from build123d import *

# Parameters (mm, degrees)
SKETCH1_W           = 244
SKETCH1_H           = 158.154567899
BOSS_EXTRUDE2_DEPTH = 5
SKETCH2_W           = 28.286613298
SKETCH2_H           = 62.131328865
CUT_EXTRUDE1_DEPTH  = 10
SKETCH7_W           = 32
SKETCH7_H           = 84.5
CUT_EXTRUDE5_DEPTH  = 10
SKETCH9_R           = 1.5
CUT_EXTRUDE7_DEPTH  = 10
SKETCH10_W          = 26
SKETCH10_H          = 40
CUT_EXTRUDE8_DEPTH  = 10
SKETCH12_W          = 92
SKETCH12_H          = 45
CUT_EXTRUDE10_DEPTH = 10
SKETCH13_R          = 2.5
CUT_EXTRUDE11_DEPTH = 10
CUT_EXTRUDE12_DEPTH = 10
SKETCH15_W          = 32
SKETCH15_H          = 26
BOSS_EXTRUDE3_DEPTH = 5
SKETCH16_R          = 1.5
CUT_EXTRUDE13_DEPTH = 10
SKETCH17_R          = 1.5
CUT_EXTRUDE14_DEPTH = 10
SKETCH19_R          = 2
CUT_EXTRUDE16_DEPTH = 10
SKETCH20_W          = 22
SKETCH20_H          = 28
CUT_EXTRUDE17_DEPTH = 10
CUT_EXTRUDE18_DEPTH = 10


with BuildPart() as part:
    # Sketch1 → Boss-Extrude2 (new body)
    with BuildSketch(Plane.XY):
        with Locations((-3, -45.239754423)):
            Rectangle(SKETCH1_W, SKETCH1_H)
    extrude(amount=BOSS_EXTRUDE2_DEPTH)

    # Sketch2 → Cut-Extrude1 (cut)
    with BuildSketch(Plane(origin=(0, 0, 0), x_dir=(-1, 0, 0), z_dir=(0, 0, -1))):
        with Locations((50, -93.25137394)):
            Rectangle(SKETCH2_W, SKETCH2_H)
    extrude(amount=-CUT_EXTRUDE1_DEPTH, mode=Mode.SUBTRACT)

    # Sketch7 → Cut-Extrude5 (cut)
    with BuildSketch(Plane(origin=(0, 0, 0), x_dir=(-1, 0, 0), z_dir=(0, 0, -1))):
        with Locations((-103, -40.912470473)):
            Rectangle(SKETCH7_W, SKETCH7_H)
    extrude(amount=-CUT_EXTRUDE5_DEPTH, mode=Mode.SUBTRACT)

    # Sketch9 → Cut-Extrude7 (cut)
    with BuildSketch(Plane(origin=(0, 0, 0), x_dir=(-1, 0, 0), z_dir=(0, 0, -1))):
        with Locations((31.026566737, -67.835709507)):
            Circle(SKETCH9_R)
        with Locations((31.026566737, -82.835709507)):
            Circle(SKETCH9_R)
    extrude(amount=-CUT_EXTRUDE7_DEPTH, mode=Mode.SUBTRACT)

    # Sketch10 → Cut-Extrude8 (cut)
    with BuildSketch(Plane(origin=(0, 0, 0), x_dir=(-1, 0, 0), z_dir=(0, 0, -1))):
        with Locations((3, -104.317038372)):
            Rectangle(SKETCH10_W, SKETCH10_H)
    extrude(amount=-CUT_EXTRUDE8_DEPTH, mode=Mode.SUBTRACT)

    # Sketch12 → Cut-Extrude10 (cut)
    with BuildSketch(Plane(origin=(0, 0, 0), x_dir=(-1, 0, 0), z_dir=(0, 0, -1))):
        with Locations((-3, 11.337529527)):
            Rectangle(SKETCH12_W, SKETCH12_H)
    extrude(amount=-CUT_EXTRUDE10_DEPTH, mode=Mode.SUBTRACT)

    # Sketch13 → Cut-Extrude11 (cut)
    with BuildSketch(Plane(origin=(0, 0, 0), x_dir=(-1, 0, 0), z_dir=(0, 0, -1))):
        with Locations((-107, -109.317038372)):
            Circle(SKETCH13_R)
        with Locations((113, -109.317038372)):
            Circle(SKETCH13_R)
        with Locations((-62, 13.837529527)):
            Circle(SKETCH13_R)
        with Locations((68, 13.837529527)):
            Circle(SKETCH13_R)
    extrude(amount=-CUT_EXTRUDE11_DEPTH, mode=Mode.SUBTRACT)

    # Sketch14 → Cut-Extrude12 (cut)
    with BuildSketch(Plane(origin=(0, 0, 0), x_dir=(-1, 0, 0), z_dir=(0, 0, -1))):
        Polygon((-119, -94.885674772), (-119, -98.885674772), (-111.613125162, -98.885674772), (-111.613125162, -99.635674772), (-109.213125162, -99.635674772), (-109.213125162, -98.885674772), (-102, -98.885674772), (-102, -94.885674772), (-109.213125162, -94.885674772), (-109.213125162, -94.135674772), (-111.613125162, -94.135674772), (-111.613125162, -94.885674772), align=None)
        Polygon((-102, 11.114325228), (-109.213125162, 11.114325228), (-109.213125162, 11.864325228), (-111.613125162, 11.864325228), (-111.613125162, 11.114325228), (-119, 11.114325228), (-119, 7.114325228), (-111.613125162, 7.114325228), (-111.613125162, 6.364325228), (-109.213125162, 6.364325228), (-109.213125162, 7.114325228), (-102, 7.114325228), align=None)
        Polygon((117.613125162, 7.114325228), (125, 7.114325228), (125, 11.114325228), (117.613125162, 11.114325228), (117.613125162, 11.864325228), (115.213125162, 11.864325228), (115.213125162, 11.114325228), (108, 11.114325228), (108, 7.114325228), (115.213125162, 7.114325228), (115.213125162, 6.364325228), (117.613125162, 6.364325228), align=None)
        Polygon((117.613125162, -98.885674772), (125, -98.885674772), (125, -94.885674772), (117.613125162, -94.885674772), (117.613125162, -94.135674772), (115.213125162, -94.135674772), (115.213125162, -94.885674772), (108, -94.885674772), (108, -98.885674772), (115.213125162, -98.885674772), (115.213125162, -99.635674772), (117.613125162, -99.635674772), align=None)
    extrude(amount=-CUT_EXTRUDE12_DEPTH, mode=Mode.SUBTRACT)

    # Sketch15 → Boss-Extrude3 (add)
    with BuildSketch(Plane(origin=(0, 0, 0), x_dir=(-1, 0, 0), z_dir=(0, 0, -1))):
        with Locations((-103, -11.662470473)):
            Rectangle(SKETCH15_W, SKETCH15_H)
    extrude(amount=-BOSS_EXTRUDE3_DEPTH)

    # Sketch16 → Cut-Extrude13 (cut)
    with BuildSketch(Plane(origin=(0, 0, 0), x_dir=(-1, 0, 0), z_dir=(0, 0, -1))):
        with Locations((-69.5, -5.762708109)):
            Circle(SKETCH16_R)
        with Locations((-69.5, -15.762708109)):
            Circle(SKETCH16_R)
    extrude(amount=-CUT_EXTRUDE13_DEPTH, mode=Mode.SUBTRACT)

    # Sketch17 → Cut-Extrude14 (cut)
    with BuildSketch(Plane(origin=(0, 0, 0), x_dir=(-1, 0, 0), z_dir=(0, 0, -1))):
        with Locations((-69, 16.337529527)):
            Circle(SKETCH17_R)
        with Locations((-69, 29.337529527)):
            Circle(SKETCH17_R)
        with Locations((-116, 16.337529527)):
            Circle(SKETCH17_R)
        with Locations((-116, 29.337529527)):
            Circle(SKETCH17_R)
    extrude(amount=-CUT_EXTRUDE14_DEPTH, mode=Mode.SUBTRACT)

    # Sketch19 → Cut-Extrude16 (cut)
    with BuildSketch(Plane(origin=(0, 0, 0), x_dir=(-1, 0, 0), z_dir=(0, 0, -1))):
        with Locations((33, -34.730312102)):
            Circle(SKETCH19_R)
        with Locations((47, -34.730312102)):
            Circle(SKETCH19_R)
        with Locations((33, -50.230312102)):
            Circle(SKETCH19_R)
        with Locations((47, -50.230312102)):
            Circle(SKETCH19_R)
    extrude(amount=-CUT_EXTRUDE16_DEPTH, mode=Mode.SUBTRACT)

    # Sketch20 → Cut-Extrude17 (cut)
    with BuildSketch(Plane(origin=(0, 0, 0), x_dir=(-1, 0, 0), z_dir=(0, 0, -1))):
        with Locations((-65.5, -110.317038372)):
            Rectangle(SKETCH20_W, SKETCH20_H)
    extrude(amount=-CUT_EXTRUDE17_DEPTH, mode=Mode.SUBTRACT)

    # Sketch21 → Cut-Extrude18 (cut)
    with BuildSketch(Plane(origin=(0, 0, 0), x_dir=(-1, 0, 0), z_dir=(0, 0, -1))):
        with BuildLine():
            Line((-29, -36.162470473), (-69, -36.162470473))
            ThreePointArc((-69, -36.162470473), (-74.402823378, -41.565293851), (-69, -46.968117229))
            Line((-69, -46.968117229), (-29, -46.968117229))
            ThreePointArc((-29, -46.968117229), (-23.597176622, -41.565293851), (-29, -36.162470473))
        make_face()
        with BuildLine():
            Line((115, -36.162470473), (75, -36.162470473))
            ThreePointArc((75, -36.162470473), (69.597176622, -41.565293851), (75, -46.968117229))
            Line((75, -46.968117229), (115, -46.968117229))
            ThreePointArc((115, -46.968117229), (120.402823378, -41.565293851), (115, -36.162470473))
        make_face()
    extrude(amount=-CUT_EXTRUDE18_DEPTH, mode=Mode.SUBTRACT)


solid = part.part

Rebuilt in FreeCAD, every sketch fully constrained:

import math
import FreeCAD as App
import Part
import Sketcher

V = App.Vector
Q = App.Units.Quantity

doc = App.newDocument("Part")
body = doc.addObject("PartDesign::Body", "Body")

# Sketch on XY plane
sketch1 = doc.addObject("Sketcher::SketchObject", "Sketch")
body.addObject(sketch1)
sketch1.AttachmentSupport = (doc.XY_Plane, [""])
sketch1.MapMode = "FlatFace"
sketch1.addGeometry(Part.LineSegment(V(-125, 34, 0), V(-125, -124, 0)), False)
sketch1.addGeometry(Part.LineSegment(V(-125, -124, 0), V(119, -124, 0)), False)
sketch1.addGeometry(Part.LineSegment(V(119, -124, 0), V(119, 34, 0)), False)
sketch1.addGeometry(Part.LineSegment(V(119, 34, 0), V(-125, 34, 0)), False)
sketch1.addConstraint(Sketcher.Constraint("Coincident", 0, 2, 1, 1))
sketch1.addConstraint(Sketcher.Constraint("Coincident", 1, 2, 2, 1))
sketch1.addConstraint(Sketcher.Constraint("Coincident", 2, 2, 3, 1))
sketch1.addConstraint(Sketcher.Constraint("Coincident", 3, 2, 0, 1))
sketch1.addConstraint(Sketcher.Constraint("Vertical", 0))
sketch1.addConstraint(Sketcher.Constraint("Horizontal", 1))
sketch1.addConstraint(Sketcher.Constraint("Vertical", 2))
sketch1.addConstraint(Sketcher.Constraint("Horizontal", 3))
sketch1.addConstraint(Sketcher.Constraint("DistanceX", 1, 1, 1, 2, Q("244 mm")))
sketch1.addConstraint(Sketcher.Constraint("DistanceX", 0, 2, -1, 1, Q("125 mm")))
sketch1.addConstraint(Sketcher.Constraint("DistanceY", 0, 2, 0, 1, Q("158.154568 mm")))
sketch1.addConstraint(Sketcher.Constraint("DistanceY", 0, 2, -1, 1, Q("124.317038 mm")))
pad1 = doc.addObject("PartDesign::Pad", "Pad")
body.addObject(pad1)
pad1.Profile = sketch1
pad1.Length = 5

# Sketch on XY plane
sketch2 = doc.addObject("Sketcher::SketchObject", "Sketch001")
body.addObject(sketch2)
sketch2.AttachmentSupport = (doc.XY_Plane, [""])
sketch2.MapMode = "FlatFace"
sketch2.addGeometry(Part.LineSegment(V(-36, -62, 0), V(-36, -124, 0)), False)
sketch2.addGeometry(Part.LineSegment(V(-36, -124, 0), V(-64, -124, 0)), False)
sketch2.addGeometry(Part.LineSegment(V(-64, -124, 0), V(-64, -62, 0)), False)
sketch2.addGeometry(Part.LineSegment(V(-64, -62, 0), V(-36, -62, 0)), False)
sketch2.addConstraint(Sketcher.Constraint("Coincident", 0, 2, 1, 1))
sketch2.addConstraint(Sketcher.Constraint("Coincident", 1, 2, 2, 1))
sketch2.addConstraint(Sketcher.Constraint("Coincident", 2, 2, 3, 1))
sketch2.addConstraint(Sketcher.Constraint("Coincident", 3, 2, 0, 1))
sketch2.addConstraint(Sketcher.Constraint("Vertical", 0))
sketch2.addConstraint(Sketcher.Constraint("Horizontal", 1))
sketch2.addConstraint(Sketcher.Constraint("Vertical", 2))
sketch2.addConstraint(Sketcher.Constraint("Horizontal", 3))
sketch2.addConstraint(Sketcher.Constraint("DistanceY", 0, 2, 0, 1, Q("62.131329 mm")))
sketch2.addConstraint(Sketcher.Constraint("DistanceX", 1, 2, 1, 1, Q("28.286613 mm")))
sketch2.addConstraint(Sketcher.Constraint("DistanceY", 0, 2, -1, 1, Q("124.317038 mm")))
sketch2.addConstraint(Sketcher.Constraint("DistanceX", 0, 2, -1, 1, Q("35.856693 mm")))
pocket1 = doc.addObject("PartDesign::Pocket", "Pocket")
body.addObject(pocket1)
pocket1.Profile = sketch2
pocket1.Length = 10
pocket1.Reversed = True

# Sketch on XY plane
sketch3 = doc.addObject("Sketcher::SketchObject", "Sketch002")
body.addObject(sketch3)
sketch3.AttachmentSupport = (doc.XY_Plane, [""])
sketch3.MapMode = "FlatFace"
sketch3.addGeometry(Part.LineSegment(V(119, 1, 0), V(119, -83, 0)), False)
sketch3.addGeometry(Part.LineSegment(V(119, -83, 0), V(87, -83, 0)), False)
sketch3.addGeometry(Part.LineSegment(V(87, -83, 0), V(87, 1, 0)), False)
sketch3.addGeometry(Part.LineSegment(V(87, 1, 0), V(119, 1, 0)), False)
sketch3.addConstraint(Sketcher.Constraint("Coincident", 0, 2, 1, 1))
sketch3.addConstraint(Sketcher.Constraint("Coincident", 1, 2, 2, 1))
sketch3.addConstraint(Sketcher.Constraint("Coincident", 2, 2, 3, 1))
sketch3.addConstraint(Sketcher.Constraint("Coincident", 3, 2, 0, 1))
sketch3.addConstraint(Sketcher.Constraint("Vertical", 0))
sketch3.addConstraint(Sketcher.Constraint("Horizontal", 1))
sketch3.addConstraint(Sketcher.Constraint("Vertical", 2))
sketch3.addConstraint(Sketcher.Constraint("Horizontal", 3))
sketch3.addConstraint(Sketcher.Constraint("DistanceX", 1, 2, 1, 1, Q("32 mm")))
sketch3.addConstraint(Sketcher.Constraint("DistanceY", 0, 2, 0, 1, Q("84.5 mm")))
sketch3.addConstraint(Sketcher.Constraint("DistanceX", -1, 1, 0, 2, Q("119 mm")))
sketch3.addConstraint(Sketcher.Constraint("DistanceY", 0, 2, -1, 1, Q("83.16247 mm")))
pocket2 = doc.addObject("PartDesign::Pocket", "Pocket001")
body.addObject(pocket2)
pocket2.Profile = sketch3
pocket2.Length = 10
pocket2.Reversed = True

# Sketch on XY plane
sketch4 = doc.addObject("Sketcher::SketchObject", "Sketch003")
body.addObject(sketch4)
sketch4.AttachmentSupport = (doc.XY_Plane, [""])
sketch4.MapMode = "FlatFace"
sketch4.addGeometry(Part.Circle(V(-31, -67.8, 0), V(0, 0, 1), 1.5), False)
sketch4.addGeometry(Part.Circle(V(-31, -82.8, 0), V(0, 0, 1), 1.5), False)
sketch4.addConstraint(Sketcher.Constraint("Equal", 0, 1))
sketch4.addConstraint(Sketcher.Constraint("Vertical", 0, 3, 1, 3))
sketch4.addConstraint(Sketcher.Constraint("Diameter", 0, Q("3 mm")))
sketch4.addConstraint(Sketcher.Constraint("DistanceY", 1, 3, 0, 3, Q("15 mm")))
sketch4.addConstraint(Sketcher.Constraint("DistanceY", 0, 3, -1, 1, Q("67.83571 mm")))
sketch4.addConstraint(Sketcher.Constraint("DistanceX", 0, 3, -1, 1, Q("31.026567 mm")))
pocket3 = doc.addObject("PartDesign::Pocket", "Pocket002")
body.addObject(pocket3)
pocket3.Profile = sketch4
pocket3.Length = 10
pocket3.Reversed = True

# Sketch on XY plane
sketch5 = doc.addObject("Sketcher::SketchObject", "Sketch004")
body.addObject(sketch5)
sketch5.AttachmentSupport = (doc.XY_Plane, [""])
sketch5.MapMode = "FlatFace"
sketch5.addGeometry(Part.LineSegment(V(10, -84, 0), V(10, -124, 0)), False)
sketch5.addGeometry(Part.LineSegment(V(10, -124, 0), V(-16, -124, 0)), False)
sketch5.addGeometry(Part.LineSegment(V(-16, -124, 0), V(-16, -84, 0)), False)
sketch5.addGeometry(Part.LineSegment(V(-16, -84, 0), V(10, -84, 0)), False)
sketch5.addConstraint(Sketcher.Constraint("Coincident", 0, 2, 1, 1))
sketch5.addConstraint(Sketcher.Constraint("Coincident", 1, 2, 2, 1))
sketch5.addConstraint(Sketcher.Constraint("Coincident", 2, 2, 3, 1))
sketch5.addConstraint(Sketcher.Constraint("Coincident", 3, 2, 0, 1))
sketch5.addConstraint(Sketcher.Constraint("Vertical", 0))
sketch5.addConstraint(Sketcher.Constraint("Horizontal", 1))
sketch5.addConstraint(Sketcher.Constraint("Vertical", 2))
sketch5.addConstraint(Sketcher.Constraint("Horizontal", 3))
sketch5.addConstraint(Sketcher.Constraint("DistanceX", 1, 2, 1, 1, Q("26 mm")))
sketch5.addConstraint(Sketcher.Constraint("DistanceY", 0, 2, 0, 1, Q("40 mm")))
sketch5.addConstraint(Sketcher.Constraint("DistanceX", -1, 1, 0, 2, Q("10 mm")))
sketch5.addConstraint(Sketcher.Constraint("DistanceY", 0, 2, -1, 1, Q("124.317038 mm")))
pocket4 = doc.addObject("PartDesign::Pocket", "Pocket003")
body.addObject(pocket4)
pocket4.Profile = sketch5
pocket4.Length = 10
pocket4.Reversed = True

# Sketch on XY plane
sketch6 = doc.addObject("Sketcher::SketchObject", "Sketch005")
body.addObject(sketch6)
sketch6.AttachmentSupport = (doc.XY_Plane, [""])
sketch6.MapMode = "FlatFace"
sketch6.addGeometry(Part.LineSegment(V(49, 34, 0), V(49, -11, 0)), False)
sketch6.addGeometry(Part.LineSegment(V(49, -11, 0), V(-43, -11, 0)), False)
sketch6.addGeometry(Part.LineSegment(V(-43, -11, 0), V(-43, 34, 0)), False)
sketch6.addGeometry(Part.LineSegment(V(-43, 34, 0), V(49, 34, 0)), False)
sketch6.addConstraint(Sketcher.Constraint("Coincident", 0, 2, 1, 1))
sketch6.addConstraint(Sketcher.Constraint("Coincident", 1, 2, 2, 1))
sketch6.addConstraint(Sketcher.Constraint("Coincident", 2, 2, 3, 1))
sketch6.addConstraint(Sketcher.Constraint("Coincident", 3, 2, 0, 1))
sketch6.addConstraint(Sketcher.Constraint("Vertical", 0))
sketch6.addConstraint(Sketcher.Constraint("Horizontal", 1))
sketch6.addConstraint(Sketcher.Constraint("Vertical", 2))
sketch6.addConstraint(Sketcher.Constraint("Horizontal", 3))
sketch6.addConstraint(Sketcher.Constraint("DistanceX", 1, 2, 1, 1, Q("92 mm")))
sketch6.addConstraint(Sketcher.Constraint("DistanceY", 0, 2, 0, 1, Q("45 mm")))
sketch6.addConstraint(Sketcher.Constraint("DistanceX", -1, 1, 0, 2, Q("49 mm")))
sketch6.addConstraint(Sketcher.Constraint("DistanceY", 0, 2, -1, 1, Q("11.16247 mm")))
pocket5 = doc.addObject("PartDesign::Pocket", "Pocket004")
body.addObject(pocket5)
pocket5.Profile = sketch6
pocket5.Length = 10
pocket5.Reversed = True

# Sketch on XY plane
sketch7 = doc.addObject("Sketcher::SketchObject", "Sketch006")
body.addObject(sketch7)
sketch7.AttachmentSupport = (doc.XY_Plane, [""])
sketch7.MapMode = "FlatFace"
sketch7.addGeometry(Part.Circle(V(107, -109.3, 0), V(0, 0, 1), 2.5), False)
sketch7.addGeometry(Part.Circle(V(-113, -109.3, 0), V(0, 0, 1), 2.5), False)
sketch7.addGeometry(Part.Circle(V(62, 13.8, 0), V(0, 0, 1), 2.5), False)
sketch7.addGeometry(Part.Circle(V(-68, 13.8, 0), V(0, 0, 1), 2.5), False)
sketch7.addConstraint(Sketcher.Constraint("Equal", 0, 1))
sketch7.addConstraint(Sketcher.Constraint("Equal", 1, 2))
sketch7.addConstraint(Sketcher.Constraint("Equal", 2, 3))
sketch7.addConstraint(Sketcher.Constraint("Horizontal", 0, 3, 1, 3))
sketch7.addConstraint(Sketcher.Constraint("Horizontal", 2, 3, 3, 3))
sketch7.addConstraint(Sketcher.Constraint("Diameter", 0, Q("5 mm")))
sketch7.addConstraint(Sketcher.Constraint("DistanceX", -1, 1, 0, 3, Q("107 mm")))
sketch7.addConstraint(Sketcher.Constraint("DistanceX", 1, 3, -1, 1, Q("113 mm")))
sketch7.addConstraint(Sketcher.Constraint("DistanceX", -1, 1, 2, 3, Q("62 mm")))
sketch7.addConstraint(Sketcher.Constraint("DistanceX", 3, 3, -1, 1, Q("68 mm")))
sketch7.addConstraint(Sketcher.Constraint("DistanceY", 0, 3, -1, 1, Q("109.317038 mm")))
sketch7.addConstraint(Sketcher.Constraint("DistanceY", -1, 1, 2, 3, Q("13.83753 mm")))
pocket6 = doc.addObject("PartDesign::Pocket", "Pocket005")
body.addObject(pocket6)
pocket6.Profile = sketch7
pocket6.Length = 10
pocket6.Reversed = True

# Sketch on XY plane
sketch8 = doc.addObject("Sketcher::SketchObject", "Sketch007")
body.addObject(sketch8)
sketch8.AttachmentSupport = (doc.XY_Plane, [""])
sketch8.MapMode = "FlatFace"
sketch8.addGeometry(Part.LineSegment(V(119, -94.9, 0), V(119, -98.9, 0)), False)
sketch8.addGeometry(Part.LineSegment(V(119, -98.9, 0), V(111.6, -98.9, 0)), False)
sketch8.addGeometry(Part.LineSegment(V(111.6, -98.9, 0), V(111.6, -99.6, 0)), False)
sketch8.addGeometry(Part.LineSegment(V(111.6, -99.6, 0), V(109.2, -99.6, 0)), False)
sketch8.addGeometry(Part.LineSegment(V(109.2, -99.6, 0), V(109.2, -98.9, 0)), False)
sketch8.addGeometry(Part.LineSegment(V(109.2, -98.9, 0), V(102, -98.9, 0)), False)
sketch8.addGeometry(Part.LineSegment(V(102, -98.9, 0), V(102, -94.9, 0)), False)
sketch8.addGeometry(Part.LineSegment(V(102, -94.9, 0), V(109.2, -94.9, 0)), False)
sketch8.addGeometry(Part.LineSegment(V(109.2, -94.9, 0), V(109.2, -94.1, 0)), False)
sketch8.addGeometry(Part.LineSegment(V(109.2, -94.1, 0), V(111.6, -94.1, 0)), False)
sketch8.addGeometry(Part.LineSegment(V(111.6, -94.1, 0), V(111.6, -94.9, 0)), False)
sketch8.addGeometry(Part.LineSegment(V(111.6, -94.9, 0), V(119, -94.9, 0)), False)
sketch8.addGeometry(Part.LineSegment(V(102, 11.1, 0), V(109.2, 11.1, 0)), False)
sketch8.addGeometry(Part.LineSegment(V(109.2, 11.1, 0), V(109.2, 11.9, 0)), False)
sketch8.addGeometry(Part.LineSegment(V(109.2, 11.9, 0), V(111.6, 11.9, 0)), False)
sketch8.addGeometry(Part.LineSegment(V(111.6, 11.9, 0), V(111.6, 11.1, 0)), False)
sketch8.addGeometry(Part.LineSegment(V(111.6, 11.1, 0), V(119, 11.1, 0)), False)
sketch8.addGeometry(Part.LineSegment(V(119, 11.1, 0), V(119, 7.1, 0)), False)
sketch8.addGeometry(Part.LineSegment(V(119, 7.1, 0), V(111.6, 7.1, 0)), False)
sketch8.addGeometry(Part.LineSegment(V(111.6, 7.1, 0), V(111.6, 6.4, 0)), False)
sketch8.addGeometry(Part.LineSegment(V(111.6, 6.4, 0), V(109.2, 6.4, 0)), False)
sketch8.addGeometry(Part.LineSegment(V(109.2, 6.4, 0), V(109.2, 7.1, 0)), False)
sketch8.addGeometry(Part.LineSegment(V(109.2, 7.1, 0), V(102, 7.1, 0)), False)
sketch8.addGeometry(Part.LineSegment(V(102, 7.1, 0), V(102, 11.1, 0)), False)
sketch8.addGeometry(Part.LineSegment(V(-117.6, 7.1, 0), V(-125, 7.1, 0)), False)
sketch8.addGeometry(Part.LineSegment(V(-125, 7.1, 0), V(-125, 11.1, 0)), False)
sketch8.addGeometry(Part.LineSegment(V(-125, 11.1, 0), V(-117.6, 11.1, 0)), False)
sketch8.addGeometry(Part.LineSegment(V(-117.6, 11.1, 0), V(-117.6, 11.9, 0)), False)
sketch8.addGeometry(Part.LineSegment(V(-117.6, 11.9, 0), V(-115.2, 11.9, 0)), False)
sketch8.addGeometry(Part.LineSegment(V(-115.2, 11.9, 0), V(-115.2, 11.1, 0)), False)
sketch8.addGeometry(Part.LineSegment(V(-115.2, 11.1, 0), V(-108, 11.1, 0)), False)
sketch8.addGeometry(Part.LineSegment(V(-108, 11.1, 0), V(-108, 7.1, 0)), False)
sketch8.addGeometry(Part.LineSegment(V(-108, 7.1, 0), V(-115.2, 7.1, 0)), False)
sketch8.addGeometry(Part.LineSegment(V(-115.2, 7.1, 0), V(-115.2, 6.4, 0)), False)
sketch8.addGeometry(Part.LineSegment(V(-115.2, 6.4, 0), V(-117.6, 6.4, 0)), False)
sketch8.addGeometry(Part.LineSegment(V(-117.6, 6.4, 0), V(-117.6, 7.1, 0)), False)
sketch8.addGeometry(Part.LineSegment(V(-117.6, -98.9, 0), V(-125, -98.9, 0)), False)
sketch8.addGeometry(Part.LineSegment(V(-125, -98.9, 0), V(-125, -94.9, 0)), False)
sketch8.addGeometry(Part.LineSegment(V(-125, -94.9, 0), V(-117.6, -94.9, 0)), False)
sketch8.addGeometry(Part.LineSegment(V(-117.6, -94.9, 0), V(-117.6, -94.1, 0)), False)
sketch8.addGeometry(Part.LineSegment(V(-117.6, -94.1, 0), V(-115.2, -94.1, 0)), False)
sketch8.addGeometry(Part.LineSegment(V(-115.2, -94.1, 0), V(-115.2, -94.9, 0)), False)
sketch8.addGeometry(Part.LineSegment(V(-115.2, -94.9, 0), V(-108, -94.9, 0)), False)
sketch8.addGeometry(Part.LineSegment(V(-108, -94.9, 0), V(-108, -98.9, 0)), False)
sketch8.addGeometry(Part.LineSegment(V(-108, -98.9, 0), V(-115.2, -98.9, 0)), False)
sketch8.addGeometry(Part.LineSegment(V(-115.2, -98.9, 0), V(-115.2, -99.6, 0)), False)
sketch8.addGeometry(Part.LineSegment(V(-115.2, -99.6, 0), V(-117.6, -99.6, 0)), False)
sketch8.addGeometry(Part.LineSegment(V(-117.6, -99.6, 0), V(-117.6, -98.9, 0)), False)
sketch8.addConstraint(Sketcher.Constraint("Coincident", 0, 2, 1, 1))
sketch8.addConstraint(Sketcher.Constraint("Coincident", 1, 2, 2, 1))
sketch8.addConstraint(Sketcher.Constraint("Coincident", 2, 2, 3, 1))
sketch8.addConstraint(Sketcher.Constraint("Coincident", 3, 2, 4, 1))
sketch8.addConstraint(Sketcher.Constraint("Coincident", 4, 2, 5, 1))
sketch8.addConstraint(Sketcher.Constraint("Coincident", 5, 2, 6, 1))
sketch8.addConstraint(Sketcher.Constraint("Coincident", 6, 2, 7, 1))
sketch8.addConstraint(Sketcher.Constraint("Coincident", 7, 2, 8, 1))
sketch8.addConstraint(Sketcher.Constraint("Coincident", 8, 2, 9, 1))
sketch8.addConstraint(Sketcher.Constraint("Coincident", 9, 2, 10, 1))
sketch8.addConstraint(Sketcher.Constraint("Coincident", 10, 2, 11, 1))
sketch8.addConstraint(Sketcher.Constraint("Coincident", 11, 2, 0, 1))
sketch8.addConstraint(Sketcher.Constraint("Coincident", 12, 2, 13, 1))
sketch8.addConstraint(Sketcher.Constraint("Coincident", 13, 2, 14, 1))
sketch8.addConstraint(Sketcher.Constraint("Coincident", 14, 2, 15, 1))
sketch8.addConstraint(Sketcher.Constraint("Coincident", 15, 2, 16, 1))
sketch8.addConstraint(Sketcher.Constraint("Coincident", 16, 2, 17, 1))
sketch8.addConstraint(Sketcher.Constraint("Coincident", 17, 2, 18, 1))
sketch8.addConstraint(Sketcher.Constraint("Coincident", 18, 2, 19, 1))
sketch8.addConstraint(Sketcher.Constraint("Coincident", 19, 2, 20, 1))
sketch8.addConstraint(Sketcher.Constraint("Coincident", 20, 2, 21, 1))
sketch8.addConstraint(Sketcher.Constraint("Coincident", 21, 2, 22, 1))
sketch8.addConstraint(Sketcher.Constraint("Coincident", 22, 2, 23, 1))
sketch8.addConstraint(Sketcher.Constraint("Coincident", 23, 2, 12, 1))
sketch8.addConstraint(Sketcher.Constraint("Coincident", 24, 2, 25, 1))
sketch8.addConstraint(Sketcher.Constraint("Coincident", 25, 2, 26, 1))
sketch8.addConstraint(Sketcher.Constraint("Coincident", 26, 2, 27, 1))
sketch8.addConstraint(Sketcher.Constraint("Coincident", 27, 2, 28, 1))
sketch8.addConstraint(Sketcher.Constraint("Coincident", 28, 2, 29, 1))
sketch8.addConstraint(Sketcher.Constraint("Coincident", 29, 2, 30, 1))
sketch8.addConstraint(Sketcher.Constraint("Coincident", 30, 2, 31, 1))
sketch8.addConstraint(Sketcher.Constraint("Coincident", 31, 2, 32, 1))
sketch8.addConstraint(Sketcher.Constraint("Coincident", 32, 2, 33, 1))
sketch8.addConstraint(Sketcher.Constraint("Coincident", 33, 2, 34, 1))
sketch8.addConstraint(Sketcher.Constraint("Coincident", 34, 2, 35, 1))
sketch8.addConstraint(Sketcher.Constraint("Coincident", 35, 2, 24, 1))
sketch8.addConstraint(Sketcher.Constraint("Coincident", 36, 2, 37, 1))
sketch8.addConstraint(Sketcher.Constraint("Coincident", 37, 2, 38, 1))
sketch8.addConstraint(Sketcher.Constraint("Coincident", 38, 2, 39, 1))
sketch8.addConstraint(Sketcher.Constraint("Coincident", 39, 2, 40, 1))
sketch8.addConstraint(Sketcher.Constraint("Coincident", 40, 2, 41, 1))
sketch8.addConstraint(Sketcher.Constraint("Coincident", 41, 2, 42, 1))
sketch8.addConstraint(Sketcher.Constraint("Coincident", 42, 2, 43, 1))
sketch8.addConstraint(Sketcher.Constraint("Coincident", 43, 2, 44, 1))
sketch8.addConstraint(Sketcher.Constraint("Coincident", 44, 2, 45, 1))
sketch8.addConstraint(Sketcher.Constraint("Coincident", 45, 2, 46, 1))
sketch8.addConstraint(Sketcher.Constraint("Coincident", 46, 2, 47, 1))
sketch8.addConstraint(Sketcher.Constraint("Coincident", 47, 2, 36, 1))
sketch8.addConstraint(Sketcher.Constraint("Vertical", 0))
sketch8.addConstraint(Sketcher.Constraint("Horizontal", 1))
sketch8.addConstraint(Sketcher.Constraint("Vertical", 2))
sketch8.addConstraint(Sketcher.Constraint("Horizontal", 3))
sketch8.addConstraint(Sketcher.Constraint("Vertical", 4))
sketch8.addConstraint(Sketcher.Constraint("Horizontal", 5))
sketch8.addConstraint(Sketcher.Constraint("Vertical", 6))
sketch8.addConstraint(Sketcher.Constraint("Horizontal", 7))
sketch8.addConstraint(Sketcher.Constraint("Vertical", 8))
sketch8.addConstraint(Sketcher.Constraint("Horizontal", 9))
sketch8.addConstraint(Sketcher.Constraint("Vertical", 10))
sketch8.addConstraint(Sketcher.Constraint("Horizontal", 11))
sketch8.addConstraint(Sketcher.Constraint("Horizontal", 12))
sketch8.addConstraint(Sketcher.Constraint("Vertical", 13))
sketch8.addConstraint(Sketcher.Constraint("Horizontal", 14))
sketch8.addConstraint(Sketcher.Constraint("Vertical", 15))
sketch8.addConstraint(Sketcher.Constraint("Horizontal", 16))
sketch8.addConstraint(Sketcher.Constraint("Vertical", 17))
sketch8.addConstraint(Sketcher.Constraint("Horizontal", 18))
sketch8.addConstraint(Sketcher.Constraint("Vertical", 19))
sketch8.addConstraint(Sketcher.Constraint("Horizontal", 20))
sketch8.addConstraint(Sketcher.Constraint("Vertical", 21))
sketch8.addConstraint(Sketcher.Constraint("Horizontal", 22))
sketch8.addConstraint(Sketcher.Constraint("Vertical", 23))
sketch8.addConstraint(Sketcher.Constraint("Horizontal", 24))
sketch8.addConstraint(Sketcher.Constraint("Vertical", 25))
sketch8.addConstraint(Sketcher.Constraint("Horizontal", 26))
sketch8.addConstraint(Sketcher.Constraint("Vertical", 27))
sketch8.addConstraint(Sketcher.Constraint("Horizontal", 28))
sketch8.addConstraint(Sketcher.Constraint("Vertical", 29))
sketch8.addConstraint(Sketcher.Constraint("Horizontal", 30))
sketch8.addConstraint(Sketcher.Constraint("Vertical", 31))
sketch8.addConstraint(Sketcher.Constraint("Horizontal", 32))
sketch8.addConstraint(Sketcher.Constraint("Vertical", 33))
sketch8.addConstraint(Sketcher.Constraint("Horizontal", 34))
sketch8.addConstraint(Sketcher.Constraint("Vertical", 35))
sketch8.addConstraint(Sketcher.Constraint("Horizontal", 36))
sketch8.addConstraint(Sketcher.Constraint("Vertical", 37))
sketch8.addConstraint(Sketcher.Constraint("Horizontal", 38))
sketch8.addConstraint(Sketcher.Constraint("Vertical", 39))
sketch8.addConstraint(Sketcher.Constraint("Horizontal", 40))
sketch8.addConstraint(Sketcher.Constraint("Vertical", 41))
sketch8.addConstraint(Sketcher.Constraint("Horizontal", 42))
sketch8.addConstraint(Sketcher.Constraint("Vertical", 43))
sketch8.addConstraint(Sketcher.Constraint("Horizontal", 44))
sketch8.addConstraint(Sketcher.Constraint("Vertical", 45))
sketch8.addConstraint(Sketcher.Constraint("Horizontal", 46))
sketch8.addConstraint(Sketcher.Constraint("Vertical", 47))
sketch8.addConstraint(Sketcher.Constraint("Horizontal", 1, 2, 4, 2))
sketch8.addConstraint(Sketcher.Constraint("Horizontal", 7, 2, 10, 2))
sketch8.addConstraint(Sketcher.Constraint("Horizontal", 12, 2, 15, 2))
sketch8.addConstraint(Sketcher.Constraint("Horizontal", 18, 2, 21, 2))
sketch8.addConstraint(Sketcher.Constraint("Horizontal", 22, 2, 24, 2))
sketch8.addConstraint(Sketcher.Constraint("Horizontal", 23, 2, 25, 2))
sketch8.addConstraint(Sketcher.Constraint("Horizontal", 14, 2, 27, 2))
sketch8.addConstraint(Sketcher.Constraint("Horizontal", 26, 2, 29, 2))
sketch8.addConstraint(Sketcher.Constraint("Horizontal", 24, 2, 31, 2))
sketch8.addConstraint(Sketcher.Constraint("Horizontal", 20, 2, 33, 2))
sketch8.addConstraint(Sketcher.Constraint("Horizontal", 5, 2, 36, 2))
sketch8.addConstraint(Sketcher.Constraint("Horizontal", 11, 2, 37, 2))
sketch8.addConstraint(Sketcher.Constraint("Horizontal", 9, 2, 39, 2))
sketch8.addConstraint(Sketcher.Constraint("Horizontal", 38, 2, 41, 2))
sketch8.addConstraint(Sketcher.Constraint("Horizontal", 36, 2, 43, 2))
sketch8.addConstraint(Sketcher.Constraint("Horizontal", 3, 2, 45, 2))
sketch8.addConstraint(Sketcher.Constraint("Vertical", 4, 2, 7, 2))
sketch8.addConstraint(Sketcher.Constraint("Vertical", 2, 2, 9, 2))
sketch8.addConstraint(Sketcher.Constraint("Vertical", 8, 2, 12, 2))
sketch8.addConstraint(Sketcher.Constraint("Vertical", 10, 2, 14, 2))
sketch8.addConstraint(Sketcher.Constraint("Vertical", 11, 2, 16, 2))
sketch8.addConstraint(Sketcher.Constraint("Vertical", 15, 2, 18, 2))
sketch8.addConstraint(Sketcher.Constraint("Vertical", 13, 2, 20, 2))
sketch8.addConstraint(Sketcher.Constraint("Vertical", 6, 2, 22, 2))
sketch8.addConstraint(Sketcher.Constraint("Vertical", 29, 2, 32, 2))
sketch8.addConstraint(Sketcher.Constraint("Vertical", 27, 2, 34, 2))
sketch8.addConstraint(Sketcher.Constraint("Vertical", 25, 2, 36, 2))
sketch8.addConstraint(Sketcher.Constraint("Vertical", 35, 2, 38, 2))
sketch8.addConstraint(Sketcher.Constraint("Vertical", 33, 2, 40, 2))
sketch8.addConstraint(Sketcher.Constraint("Vertical", 31, 2, 42, 2))
sketch8.addConstraint(Sketcher.Constraint("Vertical", 41, 2, 44, 2))
sketch8.addConstraint(Sketcher.Constraint("Vertical", 39, 2, 46, 2))
sketch8.addConstraint(Sketcher.Constraint("Equal", 18, 24))
sketch8.addConstraint(Sketcher.Constraint("Equal", 20, 28))
sketch8.addConstraint(Sketcher.Constraint("Equal", 22, 30))
sketch8.addConstraint(Sketcher.Constraint("Equal", 4, 8))
sketch8.addConstraint(Sketcher.Constraint("Equal", 10, 13))
sketch8.addConstraint(Sketcher.Constraint("Equal", 6, 17))
sketch8.addConstraint(Sketcher.Constraint("Equal", 15, 19))
sketch8.addConstraint(Sketcher.Constraint("DistanceY", 0, 2, 0, 1, Q("4 mm")))
sketch8.addConstraint(Sketcher.Constraint("DistanceX", 3, 2, 3, 1, Q("2.4 mm")))
sketch8.addConstraint(Sketcher.Constraint("DistanceX", -1, 1, 0, 2, Q("119 mm")))
sketch8.addConstraint(Sketcher.Constraint("DistanceX", -1, 1, 5, 2, Q("102 mm")))
sketch8.addConstraint(Sketcher.Constraint("DistanceX", 24, 2, -1, 1, Q("125 mm")))
sketch8.addConstraint(Sketcher.Constraint("DistanceY", 7, 2, 12, 2, Q("106 mm")))
sketch8.addConstraint(Sketcher.Constraint("DistanceY", 2, 2, 2, 1, Q("0.75 mm")))
sketch8.addConstraint(Sketcher.Constraint("DistanceX", 1, 2, 1, 1, Q("7.386875 mm")))
sketch8.addConstraint(Sketcher.Constraint("DistanceY", 0, 2, -1, 1, Q("98.885675 mm")))
pocket7 = doc.addObject("PartDesign::Pocket", "Pocket006")
body.addObject(pocket7)
pocket7.Profile = sketch8
pocket7.Length = 10
pocket7.Reversed = True

# Sketch on XY plane
sketch9 = doc.addObject("Sketcher::SketchObject", "Sketch008")
body.addObject(sketch9)
sketch9.AttachmentSupport = (doc.XY_Plane, [""])
sketch9.MapMode = "FlatFace"
sketch9.addGeometry(Part.LineSegment(V(119, 1, 0), V(119, -25, 0)), False)
sketch9.addGeometry(Part.LineSegment(V(119, -25, 0), V(87, -25, 0)), False)
sketch9.addGeometry(Part.LineSegment(V(87, -25, 0), V(87, 1, 0)), False)
sketch9.addGeometry(Part.LineSegment(V(87, 1, 0), V(119, 1, 0)), False)
sketch9.addConstraint(Sketcher.Constraint("Coincident", 0, 2, 1, 1))
sketch9.addConstraint(Sketcher.Constraint("Coincident", 1, 2, 2, 1))
sketch9.addConstraint(Sketcher.Constraint("Coincident", 2, 2, 3, 1))
sketch9.addConstraint(Sketcher.Constraint("Coincident", 3, 2, 0, 1))
sketch9.addConstraint(Sketcher.Constraint("Vertical", 0))
sketch9.addConstraint(Sketcher.Constraint("Horizontal", 1))
sketch9.addConstraint(Sketcher.Constraint("Vertical", 2))
sketch9.addConstraint(Sketcher.Constraint("Horizontal", 3))
sketch9.addConstraint(Sketcher.Constraint("DistanceX", 1, 2, 1, 1, Q("32 mm")))
sketch9.addConstraint(Sketcher.Constraint("DistanceY", 0, 2, 0, 1, Q("26 mm")))
sketch9.addConstraint(Sketcher.Constraint("DistanceX", -1, 1, 0, 2, Q("119 mm")))
sketch9.addConstraint(Sketcher.Constraint("DistanceY", 0, 2, -1, 1, Q("24.66247 mm")))
pad2 = doc.addObject("PartDesign::Pad", "Pad001")
body.addObject(pad2)
pad2.Profile = sketch9
pad2.Length = 5

# Sketch on XY plane
sketch10 = doc.addObject("Sketcher::SketchObject", "Sketch009")
body.addObject(sketch10)
sketch10.AttachmentSupport = (doc.XY_Plane, [""])
sketch10.MapMode = "FlatFace"
sketch10.addGeometry(Part.Circle(V(69.5, -5.8, 0), V(0, 0, 1), 1.5), False)
sketch10.addGeometry(Part.Circle(V(69.5, -15.8, 0), V(0, 0, 1), 1.5), False)
sketch10.addConstraint(Sketcher.Constraint("Equal", 0, 1))
sketch10.addConstraint(Sketcher.Constraint("Vertical", 0, 3, 1, 3))
sketch10.addConstraint(Sketcher.Constraint("Diameter", 0, Q("3 mm")))
sketch10.addConstraint(Sketcher.Constraint("DistanceY", 1, 3, 0, 3, Q("10 mm")))
sketch10.addConstraint(Sketcher.Constraint("DistanceX", -1, 1, 0, 3, Q("69.5 mm")))
sketch10.addConstraint(Sketcher.Constraint("DistanceY", 0, 3, -1, 1, Q("5.762708 mm")))
pocket8 = doc.addObject("PartDesign::Pocket", "Pocket007")
body.addObject(pocket8)
pocket8.Profile = sketch10
pocket8.Length = 10
pocket8.Reversed = True

# Sketch on XY plane
sketch11 = doc.addObject("Sketcher::SketchObject", "Sketch010")
body.addObject(sketch11)
sketch11.AttachmentSupport = (doc.XY_Plane, [""])
sketch11.MapMode = "FlatFace"
sketch11.addGeometry(Part.Circle(V(69, 16.3, 0), V(0, 0, 1), 1.5), False)
sketch11.addGeometry(Part.Circle(V(69, 29.3, 0), V(0, 0, 1), 1.5), False)
sketch11.addGeometry(Part.Circle(V(116, 16.3, 0), V(0, 0, 1), 1.5), False)
sketch11.addGeometry(Part.Circle(V(116, 29.3, 0), V(0, 0, 1), 1.5), False)
sketch11.addConstraint(Sketcher.Constraint("Equal", 0, 1))
sketch11.addConstraint(Sketcher.Constraint("Equal", 1, 2))
sketch11.addConstraint(Sketcher.Constraint("Equal", 2, 3))
sketch11.addConstraint(Sketcher.Constraint("Horizontal", 0, 3, 2, 3))
sketch11.addConstraint(Sketcher.Constraint("Horizontal", 1, 3, 3, 3))
sketch11.addConstraint(Sketcher.Constraint("Vertical", 0, 3, 1, 3))
sketch11.addConstraint(Sketcher.Constraint("Vertical", 2, 3, 3, 3))
sketch11.addConstraint(Sketcher.Constraint("Diameter", 0, Q("3 mm")))
sketch11.addConstraint(Sketcher.Constraint("DistanceX", -1, 1, 0, 3, Q("69 mm")))
sketch11.addConstraint(Sketcher.Constraint("DistanceX", -1, 1, 2, 3, Q("116 mm")))
sketch11.addConstraint(Sketcher.Constraint("DistanceY", 0, 3, 1, 3, Q("13 mm")))
sketch11.addConstraint(Sketcher.Constraint("DistanceY", -1, 1, 0, 3, Q("16.33753 mm")))
pocket9 = doc.addObject("PartDesign::Pocket", "Pocket008")
body.addObject(pocket9)
pocket9.Profile = sketch11
pocket9.Length = 10
pocket9.Reversed = True

# Sketch on XY plane
sketch12 = doc.addObject("Sketcher::SketchObject", "Sketch011")
body.addObject(sketch12)
sketch12.AttachmentSupport = (doc.XY_Plane, [""])
sketch12.MapMode = "FlatFace"
sketch12.addGeometry(Part.Circle(V(-33, -34.7, 0), V(0, 0, 1), 2), False)
sketch12.addGeometry(Part.Circle(V(-47, -34.7, 0), V(0, 0, 1), 2), False)
sketch12.addGeometry(Part.Circle(V(-33, -50.2, 0), V(0, 0, 1), 2), False)
sketch12.addGeometry(Part.Circle(V(-47, -50.2, 0), V(0, 0, 1), 2), False)
sketch12.addConstraint(Sketcher.Constraint("Equal", 0, 1))
sketch12.addConstraint(Sketcher.Constraint("Equal", 1, 2))
sketch12.addConstraint(Sketcher.Constraint("Equal", 2, 3))
sketch12.addConstraint(Sketcher.Constraint("Horizontal", 0, 3, 1, 3))
sketch12.addConstraint(Sketcher.Constraint("Horizontal", 2, 3, 3, 3))
sketch12.addConstraint(Sketcher.Constraint("Vertical", 0, 3, 2, 3))
sketch12.addConstraint(Sketcher.Constraint("Vertical", 1, 3, 3, 3))
sketch12.addConstraint(Sketcher.Constraint("Diameter", 0, Q("4 mm")))
sketch12.addConstraint(Sketcher.Constraint("DistanceX", 0, 3, -1, 1, Q("33 mm")))
sketch12.addConstraint(Sketcher.Constraint("DistanceX", 1, 3, -1, 1, Q("47 mm")))
sketch12.addConstraint(Sketcher.Constraint("DistanceY", 2, 3, 0, 3, Q("15.5 mm")))
sketch12.addConstraint(Sketcher.Constraint("DistanceY", 0, 3, -1, 1, Q("34.730312 mm")))
pocket10 = doc.addObject("PartDesign::Pocket", "Pocket009")
body.addObject(pocket10)
pocket10.Profile = sketch12
pocket10.Length = 10
pocket10.Reversed = True

# Sketch on XY plane
sketch13 = doc.addObject("Sketcher::SketchObject", "Sketch012")
body.addObject(sketch13)
sketch13.AttachmentSupport = (doc.XY_Plane, [""])
sketch13.MapMode = "FlatFace"
sketch13.addGeometry(Part.LineSegment(V(76, -96, 0), V(76, -124, 0)), False)
sketch13.addGeometry(Part.LineSegment(V(76, -124, 0), V(54, -124, 0)), False)
sketch13.addGeometry(Part.LineSegment(V(54, -124, 0), V(54, -96, 0)), False)
sketch13.addGeometry(Part.LineSegment(V(54, -96, 0), V(76, -96, 0)), False)
sketch13.addConstraint(Sketcher.Constraint("Coincident", 0, 2, 1, 1))
sketch13.addConstraint(Sketcher.Constraint("Coincident", 1, 2, 2, 1))
sketch13.addConstraint(Sketcher.Constraint("Coincident", 2, 2, 3, 1))
sketch13.addConstraint(Sketcher.Constraint("Coincident", 3, 2, 0, 1))
sketch13.addConstraint(Sketcher.Constraint("Vertical", 0))
sketch13.addConstraint(Sketcher.Constraint("Horizontal", 1))
sketch13.addConstraint(Sketcher.Constraint("Vertical", 2))
sketch13.addConstraint(Sketcher.Constraint("Horizontal", 3))
sketch13.addConstraint(Sketcher.Constraint("DistanceX", 1, 2, 1, 1, Q("22 mm")))
sketch13.addConstraint(Sketcher.Constraint("DistanceY", 0, 2, 0, 1, Q("28 mm")))
sketch13.addConstraint(Sketcher.Constraint("DistanceX", -1, 1, 0, 2, Q("76.5 mm")))
sketch13.addConstraint(Sketcher.Constraint("DistanceY", 0, 2, -1, 1, Q("124.317038 mm")))
pocket11 = doc.addObject("PartDesign::Pocket", "Pocket010")
body.addObject(pocket11)
pocket11.Profile = sketch13
pocket11.Length = 10
pocket11.Reversed = True

# Sketch on XY plane
sketch14 = doc.addObject("Sketcher::SketchObject", "Sketch013")
body.addObject(sketch14)
sketch14.AttachmentSupport = (doc.XY_Plane, [""])
sketch14.MapMode = "FlatFace"
sketch14.addGeometry(Part.LineSegment(V(29, -36, 0), V(69, -36, 0)), False)
sketch14.addGeometry(Part.ArcOfCircle(Part.Circle(V(69, -42, 0), V(0, 0, 1), 5), math.radians(-90), math.radians(90)), False)
sketch14.addGeometry(Part.LineSegment(V(69, -47, 0), V(29, -47, 0)), False)
sketch14.addGeometry(Part.ArcOfCircle(Part.Circle(V(29, -42, 0), V(0, 0, 1), 5), math.radians(90), math.radians(270)), False)
sketch14.addGeometry(Part.LineSegment(V(-115, -36, 0), V(-75, -36, 0)), False)
sketch14.addGeometry(Part.ArcOfCircle(Part.Circle(V(-75, -42, 0), V(0, 0, 1), 5), math.radians(-90), math.radians(90)), False)
sketch14.addGeometry(Part.LineSegment(V(-75, -47, 0), V(-115, -47, 0)), False)
sketch14.addGeometry(Part.ArcOfCircle(Part.Circle(V(-115, -42, 0), V(0, 0, 1), 5), math.radians(90), math.radians(270)), False)
sketch14.addConstraint(Sketcher.Constraint("Tangent", 0, 2, 1, 2))
sketch14.addConstraint(Sketcher.Constraint("Tangent", 1, 1, 2, 1))
sketch14.addConstraint(Sketcher.Constraint("Tangent", 2, 2, 3, 2))
sketch14.addConstraint(Sketcher.Constraint("Tangent", 3, 1, 0, 1))
sketch14.addConstraint(Sketcher.Constraint("Tangent", 4, 2, 5, 2))
sketch14.addConstraint(Sketcher.Constraint("Tangent", 5, 1, 6, 1))
sketch14.addConstraint(Sketcher.Constraint("Tangent", 6, 2, 7, 2))
sketch14.addConstraint(Sketcher.Constraint("Tangent", 7, 1, 4, 1))
sketch14.addConstraint(Sketcher.Constraint("Horizontal", 0))
sketch14.addConstraint(Sketcher.Constraint("Horizontal", 2))
sketch14.addConstraint(Sketcher.Constraint("Horizontal", 4))
sketch14.addConstraint(Sketcher.Constraint("Horizontal", 6))
sketch14.addConstraint(Sketcher.Constraint("Equal", 3, 5))
sketch14.addConstraint(Sketcher.Constraint("Horizontal", 3, 3, 5, 3))
sketch14.addConstraint(Sketcher.Constraint("Equal", 2, 4))
sketch14.addConstraint(Sketcher.Constraint("DistanceX", 0, 1, 0, 2, Q("40 mm")))
sketch14.addConstraint(Sketcher.Constraint("DistanceX", -1, 1, 1, 3, Q("69 mm")))
sketch14.addConstraint(Sketcher.Constraint("DistanceX", 5, 3, -1, 1, Q("75 mm")))
sketch14.addConstraint(Sketcher.Constraint("Radius", 1, Q("5.402823 mm")))
sketch14.addConstraint(Sketcher.Constraint("DistanceY", 0, 2, -1, 1, Q("36.16247 mm")))
pocket12 = doc.addObject("PartDesign::Pocket", "Pocket011")
body.addObject(pocket12)
pocket12.Profile = sketch14
pocket12.Length = 10
pocket12.Reversed = True

doc.recompute()
